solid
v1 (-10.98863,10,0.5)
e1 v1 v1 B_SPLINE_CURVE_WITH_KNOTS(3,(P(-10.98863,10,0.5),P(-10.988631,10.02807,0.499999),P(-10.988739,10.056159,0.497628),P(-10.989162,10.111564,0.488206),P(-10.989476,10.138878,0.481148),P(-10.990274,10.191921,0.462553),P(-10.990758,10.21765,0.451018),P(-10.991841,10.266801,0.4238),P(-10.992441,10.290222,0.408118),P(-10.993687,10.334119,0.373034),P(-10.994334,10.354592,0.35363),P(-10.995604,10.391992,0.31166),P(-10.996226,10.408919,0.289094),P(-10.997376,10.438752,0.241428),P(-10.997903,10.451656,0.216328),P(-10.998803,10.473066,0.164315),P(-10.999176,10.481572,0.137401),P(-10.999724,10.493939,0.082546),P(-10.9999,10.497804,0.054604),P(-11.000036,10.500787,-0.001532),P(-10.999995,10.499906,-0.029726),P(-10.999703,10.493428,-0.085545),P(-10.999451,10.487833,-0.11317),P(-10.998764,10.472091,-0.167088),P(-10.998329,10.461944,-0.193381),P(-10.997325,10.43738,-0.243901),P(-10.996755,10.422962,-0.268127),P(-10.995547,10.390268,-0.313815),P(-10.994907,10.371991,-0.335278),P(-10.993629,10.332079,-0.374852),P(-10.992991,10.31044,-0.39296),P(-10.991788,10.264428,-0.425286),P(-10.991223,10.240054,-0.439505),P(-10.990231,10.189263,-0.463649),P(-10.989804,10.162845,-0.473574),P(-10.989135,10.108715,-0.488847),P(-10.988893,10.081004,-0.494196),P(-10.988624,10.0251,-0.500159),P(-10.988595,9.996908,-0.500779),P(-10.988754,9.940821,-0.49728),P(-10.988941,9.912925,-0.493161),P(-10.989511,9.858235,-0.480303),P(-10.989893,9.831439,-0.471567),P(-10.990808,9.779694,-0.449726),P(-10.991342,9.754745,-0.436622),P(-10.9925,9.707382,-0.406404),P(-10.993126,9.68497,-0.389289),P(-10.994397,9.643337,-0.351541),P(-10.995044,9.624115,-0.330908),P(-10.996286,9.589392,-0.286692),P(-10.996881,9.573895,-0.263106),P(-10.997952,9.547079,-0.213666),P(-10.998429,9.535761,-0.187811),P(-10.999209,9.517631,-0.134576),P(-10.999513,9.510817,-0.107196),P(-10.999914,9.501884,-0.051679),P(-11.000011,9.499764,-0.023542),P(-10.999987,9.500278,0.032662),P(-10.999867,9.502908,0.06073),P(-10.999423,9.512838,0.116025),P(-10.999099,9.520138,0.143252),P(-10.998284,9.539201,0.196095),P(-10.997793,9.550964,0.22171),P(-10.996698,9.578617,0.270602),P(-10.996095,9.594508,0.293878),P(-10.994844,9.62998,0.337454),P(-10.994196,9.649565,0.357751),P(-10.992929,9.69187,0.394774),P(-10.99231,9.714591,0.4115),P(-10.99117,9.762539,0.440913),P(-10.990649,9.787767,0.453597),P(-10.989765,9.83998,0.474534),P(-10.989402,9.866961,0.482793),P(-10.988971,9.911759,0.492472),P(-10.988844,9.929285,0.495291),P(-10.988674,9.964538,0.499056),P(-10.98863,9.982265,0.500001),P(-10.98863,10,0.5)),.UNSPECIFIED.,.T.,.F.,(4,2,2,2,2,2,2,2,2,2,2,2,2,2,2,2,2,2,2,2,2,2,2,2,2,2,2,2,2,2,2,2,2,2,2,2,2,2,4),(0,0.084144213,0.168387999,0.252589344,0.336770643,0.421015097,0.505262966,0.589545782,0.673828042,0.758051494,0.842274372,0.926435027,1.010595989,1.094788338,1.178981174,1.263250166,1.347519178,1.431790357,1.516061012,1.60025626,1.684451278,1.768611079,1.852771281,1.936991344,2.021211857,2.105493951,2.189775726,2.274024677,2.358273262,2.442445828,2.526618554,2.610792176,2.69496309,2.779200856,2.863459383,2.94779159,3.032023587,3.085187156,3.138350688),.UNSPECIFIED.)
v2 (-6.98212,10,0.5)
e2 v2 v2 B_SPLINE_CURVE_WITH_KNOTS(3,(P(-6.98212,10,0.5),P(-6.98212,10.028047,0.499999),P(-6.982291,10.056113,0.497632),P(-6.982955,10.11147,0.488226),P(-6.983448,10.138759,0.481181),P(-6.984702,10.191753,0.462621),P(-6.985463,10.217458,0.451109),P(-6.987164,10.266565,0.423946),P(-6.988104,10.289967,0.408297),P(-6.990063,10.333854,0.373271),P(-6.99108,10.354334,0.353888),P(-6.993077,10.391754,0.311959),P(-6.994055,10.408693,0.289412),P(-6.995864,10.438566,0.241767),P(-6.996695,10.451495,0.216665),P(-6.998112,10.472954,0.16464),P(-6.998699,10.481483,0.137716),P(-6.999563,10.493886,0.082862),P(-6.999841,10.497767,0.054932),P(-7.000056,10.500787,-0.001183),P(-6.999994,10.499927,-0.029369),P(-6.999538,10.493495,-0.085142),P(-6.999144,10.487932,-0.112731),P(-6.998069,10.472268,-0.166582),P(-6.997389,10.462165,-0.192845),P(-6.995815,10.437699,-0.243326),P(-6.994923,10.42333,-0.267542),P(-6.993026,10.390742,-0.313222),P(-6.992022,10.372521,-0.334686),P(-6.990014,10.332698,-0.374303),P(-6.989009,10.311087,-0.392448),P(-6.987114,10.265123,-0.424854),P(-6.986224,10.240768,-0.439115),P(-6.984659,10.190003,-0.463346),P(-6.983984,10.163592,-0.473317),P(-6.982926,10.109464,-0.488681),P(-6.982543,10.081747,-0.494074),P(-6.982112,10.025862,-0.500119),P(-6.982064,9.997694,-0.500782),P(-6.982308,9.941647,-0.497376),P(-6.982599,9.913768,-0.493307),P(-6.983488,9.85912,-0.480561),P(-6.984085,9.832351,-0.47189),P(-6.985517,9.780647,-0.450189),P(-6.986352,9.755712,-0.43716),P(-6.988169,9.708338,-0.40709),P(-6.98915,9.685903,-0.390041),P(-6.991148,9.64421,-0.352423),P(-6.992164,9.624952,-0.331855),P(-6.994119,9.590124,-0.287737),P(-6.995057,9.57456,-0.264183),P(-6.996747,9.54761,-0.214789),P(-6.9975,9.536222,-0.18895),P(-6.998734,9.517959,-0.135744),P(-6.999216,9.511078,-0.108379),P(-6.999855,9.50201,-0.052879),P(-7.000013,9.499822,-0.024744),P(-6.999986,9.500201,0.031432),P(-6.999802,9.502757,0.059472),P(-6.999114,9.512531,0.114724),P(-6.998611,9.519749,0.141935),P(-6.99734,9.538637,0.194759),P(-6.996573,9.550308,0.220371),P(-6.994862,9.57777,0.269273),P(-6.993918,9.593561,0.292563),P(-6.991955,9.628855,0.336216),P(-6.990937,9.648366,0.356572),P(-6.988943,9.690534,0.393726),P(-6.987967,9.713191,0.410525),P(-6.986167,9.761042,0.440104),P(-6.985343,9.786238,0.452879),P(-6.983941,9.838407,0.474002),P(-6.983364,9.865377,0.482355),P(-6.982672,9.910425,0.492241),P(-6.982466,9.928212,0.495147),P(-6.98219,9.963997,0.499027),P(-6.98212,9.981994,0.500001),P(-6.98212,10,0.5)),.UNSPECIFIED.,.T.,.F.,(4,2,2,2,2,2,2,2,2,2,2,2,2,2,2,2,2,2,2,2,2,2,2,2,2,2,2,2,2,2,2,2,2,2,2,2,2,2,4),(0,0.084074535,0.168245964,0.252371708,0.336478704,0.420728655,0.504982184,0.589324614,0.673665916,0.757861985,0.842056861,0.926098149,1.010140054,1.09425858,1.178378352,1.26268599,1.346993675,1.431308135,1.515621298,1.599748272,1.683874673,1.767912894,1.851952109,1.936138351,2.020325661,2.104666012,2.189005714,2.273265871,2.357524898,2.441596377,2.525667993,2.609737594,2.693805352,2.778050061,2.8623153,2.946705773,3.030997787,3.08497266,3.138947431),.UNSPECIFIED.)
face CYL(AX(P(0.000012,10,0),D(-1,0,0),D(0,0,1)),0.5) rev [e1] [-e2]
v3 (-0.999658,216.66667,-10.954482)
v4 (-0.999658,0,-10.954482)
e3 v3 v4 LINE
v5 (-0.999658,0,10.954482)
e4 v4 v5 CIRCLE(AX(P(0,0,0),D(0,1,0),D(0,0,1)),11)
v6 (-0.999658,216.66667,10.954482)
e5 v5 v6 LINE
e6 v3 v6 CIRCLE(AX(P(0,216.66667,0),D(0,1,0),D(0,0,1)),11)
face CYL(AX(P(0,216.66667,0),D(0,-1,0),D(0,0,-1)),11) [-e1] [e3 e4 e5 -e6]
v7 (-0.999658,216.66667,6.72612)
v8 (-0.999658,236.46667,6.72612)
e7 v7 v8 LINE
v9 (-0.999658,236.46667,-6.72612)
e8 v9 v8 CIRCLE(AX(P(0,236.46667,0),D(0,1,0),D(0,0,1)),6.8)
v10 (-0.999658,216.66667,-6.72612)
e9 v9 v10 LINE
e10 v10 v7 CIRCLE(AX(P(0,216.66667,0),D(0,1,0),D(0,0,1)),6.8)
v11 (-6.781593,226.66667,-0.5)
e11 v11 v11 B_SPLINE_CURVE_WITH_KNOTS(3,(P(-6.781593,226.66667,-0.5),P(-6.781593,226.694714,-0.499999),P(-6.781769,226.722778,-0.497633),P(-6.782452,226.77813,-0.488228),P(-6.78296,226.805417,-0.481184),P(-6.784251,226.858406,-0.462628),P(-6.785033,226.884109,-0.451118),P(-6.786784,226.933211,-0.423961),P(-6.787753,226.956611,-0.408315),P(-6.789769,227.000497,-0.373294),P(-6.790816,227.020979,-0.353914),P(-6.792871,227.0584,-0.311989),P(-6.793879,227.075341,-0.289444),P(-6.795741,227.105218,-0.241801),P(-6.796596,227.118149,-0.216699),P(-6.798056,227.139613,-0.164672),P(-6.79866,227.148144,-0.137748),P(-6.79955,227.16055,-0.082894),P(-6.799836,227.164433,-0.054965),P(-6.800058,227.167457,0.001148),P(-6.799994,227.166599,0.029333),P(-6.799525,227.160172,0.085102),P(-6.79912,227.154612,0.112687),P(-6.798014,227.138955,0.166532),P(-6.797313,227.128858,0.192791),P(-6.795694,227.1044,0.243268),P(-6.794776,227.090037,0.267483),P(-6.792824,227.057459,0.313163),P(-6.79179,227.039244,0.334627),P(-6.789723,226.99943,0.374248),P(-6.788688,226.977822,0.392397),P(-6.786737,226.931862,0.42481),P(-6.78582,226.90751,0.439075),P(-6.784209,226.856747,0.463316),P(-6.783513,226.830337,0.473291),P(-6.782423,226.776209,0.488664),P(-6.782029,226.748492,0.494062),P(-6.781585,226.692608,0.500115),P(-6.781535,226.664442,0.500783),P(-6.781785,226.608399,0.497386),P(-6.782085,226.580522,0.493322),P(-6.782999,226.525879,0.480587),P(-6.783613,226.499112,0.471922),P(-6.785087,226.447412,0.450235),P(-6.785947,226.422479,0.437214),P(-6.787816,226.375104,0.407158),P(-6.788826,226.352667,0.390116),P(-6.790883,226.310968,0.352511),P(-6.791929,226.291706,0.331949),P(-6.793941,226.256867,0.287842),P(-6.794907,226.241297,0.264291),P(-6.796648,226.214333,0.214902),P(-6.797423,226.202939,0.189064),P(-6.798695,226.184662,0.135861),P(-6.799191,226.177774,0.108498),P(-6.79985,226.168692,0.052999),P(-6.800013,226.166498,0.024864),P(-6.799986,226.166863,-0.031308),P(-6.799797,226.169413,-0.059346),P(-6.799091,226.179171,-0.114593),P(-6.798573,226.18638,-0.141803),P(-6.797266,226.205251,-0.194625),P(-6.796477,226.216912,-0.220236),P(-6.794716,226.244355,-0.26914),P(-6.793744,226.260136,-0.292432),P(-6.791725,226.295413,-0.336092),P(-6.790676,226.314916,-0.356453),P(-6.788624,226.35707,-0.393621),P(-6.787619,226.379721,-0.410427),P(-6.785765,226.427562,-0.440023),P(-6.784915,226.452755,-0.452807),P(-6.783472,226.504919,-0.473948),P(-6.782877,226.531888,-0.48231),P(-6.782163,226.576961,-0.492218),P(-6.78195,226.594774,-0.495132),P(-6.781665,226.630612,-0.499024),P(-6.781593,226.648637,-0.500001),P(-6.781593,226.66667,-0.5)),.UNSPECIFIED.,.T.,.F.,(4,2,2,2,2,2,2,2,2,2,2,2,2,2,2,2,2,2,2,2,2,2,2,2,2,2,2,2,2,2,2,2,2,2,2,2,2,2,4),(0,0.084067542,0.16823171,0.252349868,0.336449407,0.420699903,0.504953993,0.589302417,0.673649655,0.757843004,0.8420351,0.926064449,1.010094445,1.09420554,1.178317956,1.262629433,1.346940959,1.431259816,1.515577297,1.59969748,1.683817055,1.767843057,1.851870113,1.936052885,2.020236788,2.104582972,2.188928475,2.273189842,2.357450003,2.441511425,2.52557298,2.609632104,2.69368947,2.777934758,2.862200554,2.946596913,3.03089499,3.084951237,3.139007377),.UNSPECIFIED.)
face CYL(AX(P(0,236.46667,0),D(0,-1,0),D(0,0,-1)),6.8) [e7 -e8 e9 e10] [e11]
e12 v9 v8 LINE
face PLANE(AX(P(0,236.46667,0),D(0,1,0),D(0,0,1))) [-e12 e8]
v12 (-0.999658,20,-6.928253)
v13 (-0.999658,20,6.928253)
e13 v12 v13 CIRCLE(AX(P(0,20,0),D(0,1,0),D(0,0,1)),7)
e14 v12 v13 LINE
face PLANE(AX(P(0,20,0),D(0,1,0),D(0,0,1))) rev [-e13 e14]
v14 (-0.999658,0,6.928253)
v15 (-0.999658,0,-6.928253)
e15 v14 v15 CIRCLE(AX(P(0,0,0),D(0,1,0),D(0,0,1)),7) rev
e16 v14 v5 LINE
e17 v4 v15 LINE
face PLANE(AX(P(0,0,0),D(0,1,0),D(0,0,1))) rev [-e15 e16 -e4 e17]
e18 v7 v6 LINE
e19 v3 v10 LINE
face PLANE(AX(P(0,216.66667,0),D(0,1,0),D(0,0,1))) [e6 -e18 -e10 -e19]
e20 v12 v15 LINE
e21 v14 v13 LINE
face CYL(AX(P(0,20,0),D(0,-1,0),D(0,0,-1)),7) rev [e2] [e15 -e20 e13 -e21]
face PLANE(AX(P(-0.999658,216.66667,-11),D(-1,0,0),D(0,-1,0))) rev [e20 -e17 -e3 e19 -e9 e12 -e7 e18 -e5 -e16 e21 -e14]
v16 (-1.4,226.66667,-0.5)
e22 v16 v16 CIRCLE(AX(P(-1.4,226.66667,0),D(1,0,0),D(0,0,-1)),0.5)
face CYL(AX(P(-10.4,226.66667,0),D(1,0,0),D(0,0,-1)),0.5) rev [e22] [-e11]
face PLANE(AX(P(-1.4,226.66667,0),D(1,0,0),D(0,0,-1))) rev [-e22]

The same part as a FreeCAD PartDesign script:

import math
import FreeCAD as App
import Part
import Sketcher
from FreeCAD import Vector


def add_polygon(sketch, points):
    """Adds a closed chain of lines whose ends are joined by coincident constraints."""
    first, n = sketch.GeometryCount, len(points)
    for a, b in zip(points, points[1:] + points[:1]):
        sketch.addGeometry(Part.LineSegment(App.Vector(*a, 0), App.Vector(*b, 0)), False)
    for i in range(n):
        sketch.addConstraint(Sketcher.Constraint("Coincident", first + i, 2, first + (i + 1) % n, 1))

doc = App.newDocument("Part")
params = doc.addObject("Spreadsheet::Sheet", "Params")
for row, (alias, value) in enumerate([
    ("sketch1_radius", "11 mm"),
    ("pad1_length", "216.66667 mm"),
    ("sketch2_radius", "6.8 mm"),
    ("pad2_length", "19.8 mm"),
    ("sketch3_diameter", "1 mm"),
    ("pocket1_length", "9 mm"),
    ("sketch4_diameter", "14 mm"),
    ("pocket2_length", "20 mm"),
    ("sketch5_diameter", "1 mm"),
    ("sketch6_diameter", "1 mm"),
    ("sketch7_width", "3.5 mm"),
    ("sketch8_height", "20 mm"),
], start=1):
    params.set(f"A{row}", alias)
    params.set(f"B{row}", "=" + value)
    params.setAlias(f"B{row}", alias)

body = doc.addObject("PartDesign::Body", "Body")

sketch1 = body.newObject("Sketcher::SketchObject", "Sketch")
sketch1.AttachmentSupport = (doc.getObject("XZ_Plane"), [""])
sketch1.MapMode = "FlatFace"
sketch1.addGeometry(Part.LineSegment(Vector(0, 11, 0), Vector(0, -11, 0)), False)
sketch1.addGeometry(Part.ArcOfCircle(Part.Circle(Vector(0, 0, 0), Vector(0, 0, 1), 11), math.radians(90), math.radians(270)), False)
sketch1.addConstraint(Sketcher.Constraint("Coincident", 0, 1, 1, 1))
sketch1.addConstraint(Sketcher.Constraint("Coincident", 1, 2, 0, 2))
sketch1.addConstraint(Sketcher.Constraint("Vertical", 0))
sketch1.addConstraint(Sketcher.Constraint("Coincident", 1, 3, -1, 1))
sketch1.addConstraint(Sketcher.Constraint("PointOnObject", 0, 1, -2))
sketch1.addConstraint(Sketcher.Constraint("Radius", 1, 11.0))
sketch1.setExpression("Constraints[5]", "Params.sketch1_radius")
pad1 = body.newObject("PartDesign::Pad", "Pad")
pad1.Profile = sketch1
pad1.setExpression("Length", "Params.pad1_length")
pad1.Reversed = True

sketch2 = body.newObject("Sketcher::SketchObject", "Sketch001")
sketch2.AttachmentSupport = (doc.getObject("XZ_Plane"), [""])
sketch2.MapMode = "FlatFace"
sketch2.AttachmentOffset = App.Placement(Vector(0, 0, -216.66667), App.Rotation())
sketch2.addGeometry(Part.LineSegment(Vector(0, 7, 0), Vector(0, -7, 0)), False)
sketch2.addGeometry(Part.ArcOfCircle(Part.Circle(Vector(0, 0, 0), Vector(0, 0, 1), 7), math.radians(90), math.radians(270)), False)
sketch2.addConstraint(Sketcher.Constraint("Coincident", 0, 1, 1, 1))
sketch2.addConstraint(Sketcher.Constraint("Coincident", 1, 2, 0, 2))
sketch2.addConstraint(Sketcher.Constraint("Vertical", 0))
sketch2.addConstraint(Sketcher.Constraint("Coincident", 1, 3, -1, 1))
sketch2.addConstraint(Sketcher.Constraint("PointOnObject", 0, 1, -2))
sketch2.addConstraint(Sketcher.Constraint("Radius", 1, 6.8))
sketch2.setExpression("Constraints[5]", "Params.sketch2_radius")
pad2 = body.newObject("PartDesign::Pad", "Pad001")
pad2.Profile = sketch2
pad2.setExpression("Length", "Params.pad2_length")
pad2.Reversed = True

sketch3 = body.newObject("Sketcher::SketchObject", "Sketch002")
sketch3.AttachmentSupport = (doc.getObject("YZ_Plane"), [""])
sketch3.MapMode = "FlatFace"
sketch3.AttachmentOffset = App.Placement(Vector(0, 0, -1.4), App.Rotation())
sketch3.addGeometry(Part.Circle(Vector(226.7, 0, 0), Vector(0, 0, 1), 0.5), False)
sketch3.addConstraint(Sketcher.Constraint("PointOnObject", 0, 3, -1))
sketch3.addConstraint(Sketcher.Constraint("Diameter", 0, 1.0))
sketch3.addConstraint(Sketcher.Constraint("DistanceX", -1, 1, 0, 3, 226.66667))
sketch3.setExpression("Constraints[1]", "Params.sketch3_diameter")
pocket1 = body.newObject("PartDesign::Pocket", "Pocket")
pocket1.Profile = sketch3
pocket1.setExpression("Length", "Params.pocket1_length")

sketch4 = body.newObject("Sketcher::SketchObject", "Sketch003")
sketch4.AttachmentSupport = (doc.getObject("XZ_Plane"), [""])
sketch4.MapMode = "FlatFace"
sketch4.addGeometry(Part.Circle(Vector(0, 0, 0), Vector(0, 0, 1), 7), False)
sketch4.addConstraint(Sketcher.Constraint("Coincident", 0, 3, -1, 1))
sketch4.addConstraint(Sketcher.Constraint("Diameter", 0, 14.0))
sketch4.setExpression("Constraints[1]", "Params.sketch4_diameter")
pocket2 = body.newObject("PartDesign::Pocket", "Pocket001")
pocket2.Profile = sketch4
pocket2.setExpression("Length", "Params.pocket2_length")

sketch5 = body.newObject("Sketcher::SketchObject", "Sketch004")
sketch5.AttachmentSupport = (doc.getObject("YZ_Plane"), [""])
sketch5.MapMode = "FlatFace"
sketch5.addGeometry(Part.Circle(Vector(10, 0, 0), Vector(0, 0, 1), 0.5), False)
sketch5.addConstraint(Sketcher.Constraint("PointOnObject", 0, 3, -1))
sketch5.addConstraint(Sketcher.Constraint("Diameter", 0, 1.0))
sketch5.addConstraint(Sketcher.Constraint("DistanceX", -1, 1, 0, 3, 10.0))
sketch5.setExpression("Constraints[1]", "Params.sketch5_diameter")
pocket3 = body.newObject("PartDesign::Pocket", "Pocket002")
pocket3.Profile = sketch5
pocket3.Type = "ThroughAll"
pocket3.Midplane = True

sketch6 = body.newObject("Sketcher::SketchObject", "Sketch005")
sketch6.AttachmentSupport = (doc.getObject("XY_Plane"), [""])
sketch6.MapMode = "FlatFace"
sketch6.addGeometry(Part.Circle(Vector(0, 5, 0), Vector(0, 0, 1), 0.5), False)
sketch6.addConstraint(Sketcher.Constraint("PointOnObject", 0, 3, -2))
sketch6.addConstraint(Sketcher.Constraint("Diameter", 0, 1.0))
sketch6.addConstraint(Sketcher.Constraint("DistanceY", -1, 1, 0, 3, 5.0))
sketch6.setExpression("Constraints[1]", "Params.sketch6_diameter")
pocket4 = body.newObject("PartDesign::Pocket", "Pocket003")
pocket4.Profile = sketch6
pocket4.Type = "ThroughAll"
pocket4.Midplane = True

sketch7 = body.newObject("Sketcher::SketchObject", "Sketch006")
sketch7.AttachmentSupport = (doc.getObject("XY_Plane"), [""])
sketch7.MapMode = "FlatFace"
add_polygon(sketch7, [(-1, 216.7), (-1, 0), (2.5, 0), (2.5, 216.7)])
sketch7.addConstraint(Sketcher.Constraint("Vertical", 0))
sketch7.addConstraint(Sketcher.Constraint("Horizontal", 1))
sketch7.addConstraint(Sketcher.Constraint("Vertical", 2))
sketch7.addConstraint(Sketcher.Constraint("Horizontal", 3))
sketch7.addConstraint(Sketcher.Constraint("PointOnObject", 0, 2, -1))
sketch7.addConstraint(Sketcher.Constraint("DistanceX", 1, 1, 1, 2, 3.5))
sketch7.addConstraint(Sketcher.Constraint("DistanceY", 0, 2, 0, 1, 216.66667))
sketch7.addConstraint(Sketcher.Constraint("DistanceX", 0, 2, -1, 1, 0.999658))
sketch7.setExpression("Constraints[9]", "Params.sketch7_width")
pocket5 = body.newObject("PartDesign::Pocket", "Pocket004")
pocket5.Profile = sketch7
pocket5.Type = "ThroughAll"
pocket5.Midplane = True

sketch8 = body.newObject("Sketcher::SketchObject", "Sketch007")
sketch8.AttachmentSupport = (doc.getObject("XY_Plane"), [""])
sketch8.MapMode = "FlatFace"
add_polygon(sketch8, [(-1, 236.7), (-1, 216.7), (2.5, 216.7), (2.5, 236.7)])
sketch8.addConstraint(Sketcher.Constraint("Vertical", 0))
sketch8.addConstraint(Sketcher.Constraint("Horizontal", 1))
sketch8.addConstraint(Sketcher.Constraint("Vertical", 2))
sketch8.addConstraint(Sketcher.Constraint("Horizontal", 3))
sketch8.addConstraint(Sketcher.Constraint("DistanceY", 0, 2, 0, 1, 20.0))
sketch8.addConstraint(Sketcher.Constraint("DistanceX", 1, 1, 1, 2, 3.499316))
sketch8.addConstraint(Sketcher.Constraint("DistanceX", 0, 2, -1, 1, 0.999658))
sketch8.addConstraint(Sketcher.Constraint("DistanceY", -1, 1, 0, 2, 216.66667))
sketch8.setExpression("Constraints[8]", "Params.sketch8_height")
pocket6 = body.newObject("PartDesign::Pocket", "Pocket005")
pocket6.Profile = sketch8
pocket6.Type = "ThroughAll"
pocket6.Midplane = True

doc.recompute()
